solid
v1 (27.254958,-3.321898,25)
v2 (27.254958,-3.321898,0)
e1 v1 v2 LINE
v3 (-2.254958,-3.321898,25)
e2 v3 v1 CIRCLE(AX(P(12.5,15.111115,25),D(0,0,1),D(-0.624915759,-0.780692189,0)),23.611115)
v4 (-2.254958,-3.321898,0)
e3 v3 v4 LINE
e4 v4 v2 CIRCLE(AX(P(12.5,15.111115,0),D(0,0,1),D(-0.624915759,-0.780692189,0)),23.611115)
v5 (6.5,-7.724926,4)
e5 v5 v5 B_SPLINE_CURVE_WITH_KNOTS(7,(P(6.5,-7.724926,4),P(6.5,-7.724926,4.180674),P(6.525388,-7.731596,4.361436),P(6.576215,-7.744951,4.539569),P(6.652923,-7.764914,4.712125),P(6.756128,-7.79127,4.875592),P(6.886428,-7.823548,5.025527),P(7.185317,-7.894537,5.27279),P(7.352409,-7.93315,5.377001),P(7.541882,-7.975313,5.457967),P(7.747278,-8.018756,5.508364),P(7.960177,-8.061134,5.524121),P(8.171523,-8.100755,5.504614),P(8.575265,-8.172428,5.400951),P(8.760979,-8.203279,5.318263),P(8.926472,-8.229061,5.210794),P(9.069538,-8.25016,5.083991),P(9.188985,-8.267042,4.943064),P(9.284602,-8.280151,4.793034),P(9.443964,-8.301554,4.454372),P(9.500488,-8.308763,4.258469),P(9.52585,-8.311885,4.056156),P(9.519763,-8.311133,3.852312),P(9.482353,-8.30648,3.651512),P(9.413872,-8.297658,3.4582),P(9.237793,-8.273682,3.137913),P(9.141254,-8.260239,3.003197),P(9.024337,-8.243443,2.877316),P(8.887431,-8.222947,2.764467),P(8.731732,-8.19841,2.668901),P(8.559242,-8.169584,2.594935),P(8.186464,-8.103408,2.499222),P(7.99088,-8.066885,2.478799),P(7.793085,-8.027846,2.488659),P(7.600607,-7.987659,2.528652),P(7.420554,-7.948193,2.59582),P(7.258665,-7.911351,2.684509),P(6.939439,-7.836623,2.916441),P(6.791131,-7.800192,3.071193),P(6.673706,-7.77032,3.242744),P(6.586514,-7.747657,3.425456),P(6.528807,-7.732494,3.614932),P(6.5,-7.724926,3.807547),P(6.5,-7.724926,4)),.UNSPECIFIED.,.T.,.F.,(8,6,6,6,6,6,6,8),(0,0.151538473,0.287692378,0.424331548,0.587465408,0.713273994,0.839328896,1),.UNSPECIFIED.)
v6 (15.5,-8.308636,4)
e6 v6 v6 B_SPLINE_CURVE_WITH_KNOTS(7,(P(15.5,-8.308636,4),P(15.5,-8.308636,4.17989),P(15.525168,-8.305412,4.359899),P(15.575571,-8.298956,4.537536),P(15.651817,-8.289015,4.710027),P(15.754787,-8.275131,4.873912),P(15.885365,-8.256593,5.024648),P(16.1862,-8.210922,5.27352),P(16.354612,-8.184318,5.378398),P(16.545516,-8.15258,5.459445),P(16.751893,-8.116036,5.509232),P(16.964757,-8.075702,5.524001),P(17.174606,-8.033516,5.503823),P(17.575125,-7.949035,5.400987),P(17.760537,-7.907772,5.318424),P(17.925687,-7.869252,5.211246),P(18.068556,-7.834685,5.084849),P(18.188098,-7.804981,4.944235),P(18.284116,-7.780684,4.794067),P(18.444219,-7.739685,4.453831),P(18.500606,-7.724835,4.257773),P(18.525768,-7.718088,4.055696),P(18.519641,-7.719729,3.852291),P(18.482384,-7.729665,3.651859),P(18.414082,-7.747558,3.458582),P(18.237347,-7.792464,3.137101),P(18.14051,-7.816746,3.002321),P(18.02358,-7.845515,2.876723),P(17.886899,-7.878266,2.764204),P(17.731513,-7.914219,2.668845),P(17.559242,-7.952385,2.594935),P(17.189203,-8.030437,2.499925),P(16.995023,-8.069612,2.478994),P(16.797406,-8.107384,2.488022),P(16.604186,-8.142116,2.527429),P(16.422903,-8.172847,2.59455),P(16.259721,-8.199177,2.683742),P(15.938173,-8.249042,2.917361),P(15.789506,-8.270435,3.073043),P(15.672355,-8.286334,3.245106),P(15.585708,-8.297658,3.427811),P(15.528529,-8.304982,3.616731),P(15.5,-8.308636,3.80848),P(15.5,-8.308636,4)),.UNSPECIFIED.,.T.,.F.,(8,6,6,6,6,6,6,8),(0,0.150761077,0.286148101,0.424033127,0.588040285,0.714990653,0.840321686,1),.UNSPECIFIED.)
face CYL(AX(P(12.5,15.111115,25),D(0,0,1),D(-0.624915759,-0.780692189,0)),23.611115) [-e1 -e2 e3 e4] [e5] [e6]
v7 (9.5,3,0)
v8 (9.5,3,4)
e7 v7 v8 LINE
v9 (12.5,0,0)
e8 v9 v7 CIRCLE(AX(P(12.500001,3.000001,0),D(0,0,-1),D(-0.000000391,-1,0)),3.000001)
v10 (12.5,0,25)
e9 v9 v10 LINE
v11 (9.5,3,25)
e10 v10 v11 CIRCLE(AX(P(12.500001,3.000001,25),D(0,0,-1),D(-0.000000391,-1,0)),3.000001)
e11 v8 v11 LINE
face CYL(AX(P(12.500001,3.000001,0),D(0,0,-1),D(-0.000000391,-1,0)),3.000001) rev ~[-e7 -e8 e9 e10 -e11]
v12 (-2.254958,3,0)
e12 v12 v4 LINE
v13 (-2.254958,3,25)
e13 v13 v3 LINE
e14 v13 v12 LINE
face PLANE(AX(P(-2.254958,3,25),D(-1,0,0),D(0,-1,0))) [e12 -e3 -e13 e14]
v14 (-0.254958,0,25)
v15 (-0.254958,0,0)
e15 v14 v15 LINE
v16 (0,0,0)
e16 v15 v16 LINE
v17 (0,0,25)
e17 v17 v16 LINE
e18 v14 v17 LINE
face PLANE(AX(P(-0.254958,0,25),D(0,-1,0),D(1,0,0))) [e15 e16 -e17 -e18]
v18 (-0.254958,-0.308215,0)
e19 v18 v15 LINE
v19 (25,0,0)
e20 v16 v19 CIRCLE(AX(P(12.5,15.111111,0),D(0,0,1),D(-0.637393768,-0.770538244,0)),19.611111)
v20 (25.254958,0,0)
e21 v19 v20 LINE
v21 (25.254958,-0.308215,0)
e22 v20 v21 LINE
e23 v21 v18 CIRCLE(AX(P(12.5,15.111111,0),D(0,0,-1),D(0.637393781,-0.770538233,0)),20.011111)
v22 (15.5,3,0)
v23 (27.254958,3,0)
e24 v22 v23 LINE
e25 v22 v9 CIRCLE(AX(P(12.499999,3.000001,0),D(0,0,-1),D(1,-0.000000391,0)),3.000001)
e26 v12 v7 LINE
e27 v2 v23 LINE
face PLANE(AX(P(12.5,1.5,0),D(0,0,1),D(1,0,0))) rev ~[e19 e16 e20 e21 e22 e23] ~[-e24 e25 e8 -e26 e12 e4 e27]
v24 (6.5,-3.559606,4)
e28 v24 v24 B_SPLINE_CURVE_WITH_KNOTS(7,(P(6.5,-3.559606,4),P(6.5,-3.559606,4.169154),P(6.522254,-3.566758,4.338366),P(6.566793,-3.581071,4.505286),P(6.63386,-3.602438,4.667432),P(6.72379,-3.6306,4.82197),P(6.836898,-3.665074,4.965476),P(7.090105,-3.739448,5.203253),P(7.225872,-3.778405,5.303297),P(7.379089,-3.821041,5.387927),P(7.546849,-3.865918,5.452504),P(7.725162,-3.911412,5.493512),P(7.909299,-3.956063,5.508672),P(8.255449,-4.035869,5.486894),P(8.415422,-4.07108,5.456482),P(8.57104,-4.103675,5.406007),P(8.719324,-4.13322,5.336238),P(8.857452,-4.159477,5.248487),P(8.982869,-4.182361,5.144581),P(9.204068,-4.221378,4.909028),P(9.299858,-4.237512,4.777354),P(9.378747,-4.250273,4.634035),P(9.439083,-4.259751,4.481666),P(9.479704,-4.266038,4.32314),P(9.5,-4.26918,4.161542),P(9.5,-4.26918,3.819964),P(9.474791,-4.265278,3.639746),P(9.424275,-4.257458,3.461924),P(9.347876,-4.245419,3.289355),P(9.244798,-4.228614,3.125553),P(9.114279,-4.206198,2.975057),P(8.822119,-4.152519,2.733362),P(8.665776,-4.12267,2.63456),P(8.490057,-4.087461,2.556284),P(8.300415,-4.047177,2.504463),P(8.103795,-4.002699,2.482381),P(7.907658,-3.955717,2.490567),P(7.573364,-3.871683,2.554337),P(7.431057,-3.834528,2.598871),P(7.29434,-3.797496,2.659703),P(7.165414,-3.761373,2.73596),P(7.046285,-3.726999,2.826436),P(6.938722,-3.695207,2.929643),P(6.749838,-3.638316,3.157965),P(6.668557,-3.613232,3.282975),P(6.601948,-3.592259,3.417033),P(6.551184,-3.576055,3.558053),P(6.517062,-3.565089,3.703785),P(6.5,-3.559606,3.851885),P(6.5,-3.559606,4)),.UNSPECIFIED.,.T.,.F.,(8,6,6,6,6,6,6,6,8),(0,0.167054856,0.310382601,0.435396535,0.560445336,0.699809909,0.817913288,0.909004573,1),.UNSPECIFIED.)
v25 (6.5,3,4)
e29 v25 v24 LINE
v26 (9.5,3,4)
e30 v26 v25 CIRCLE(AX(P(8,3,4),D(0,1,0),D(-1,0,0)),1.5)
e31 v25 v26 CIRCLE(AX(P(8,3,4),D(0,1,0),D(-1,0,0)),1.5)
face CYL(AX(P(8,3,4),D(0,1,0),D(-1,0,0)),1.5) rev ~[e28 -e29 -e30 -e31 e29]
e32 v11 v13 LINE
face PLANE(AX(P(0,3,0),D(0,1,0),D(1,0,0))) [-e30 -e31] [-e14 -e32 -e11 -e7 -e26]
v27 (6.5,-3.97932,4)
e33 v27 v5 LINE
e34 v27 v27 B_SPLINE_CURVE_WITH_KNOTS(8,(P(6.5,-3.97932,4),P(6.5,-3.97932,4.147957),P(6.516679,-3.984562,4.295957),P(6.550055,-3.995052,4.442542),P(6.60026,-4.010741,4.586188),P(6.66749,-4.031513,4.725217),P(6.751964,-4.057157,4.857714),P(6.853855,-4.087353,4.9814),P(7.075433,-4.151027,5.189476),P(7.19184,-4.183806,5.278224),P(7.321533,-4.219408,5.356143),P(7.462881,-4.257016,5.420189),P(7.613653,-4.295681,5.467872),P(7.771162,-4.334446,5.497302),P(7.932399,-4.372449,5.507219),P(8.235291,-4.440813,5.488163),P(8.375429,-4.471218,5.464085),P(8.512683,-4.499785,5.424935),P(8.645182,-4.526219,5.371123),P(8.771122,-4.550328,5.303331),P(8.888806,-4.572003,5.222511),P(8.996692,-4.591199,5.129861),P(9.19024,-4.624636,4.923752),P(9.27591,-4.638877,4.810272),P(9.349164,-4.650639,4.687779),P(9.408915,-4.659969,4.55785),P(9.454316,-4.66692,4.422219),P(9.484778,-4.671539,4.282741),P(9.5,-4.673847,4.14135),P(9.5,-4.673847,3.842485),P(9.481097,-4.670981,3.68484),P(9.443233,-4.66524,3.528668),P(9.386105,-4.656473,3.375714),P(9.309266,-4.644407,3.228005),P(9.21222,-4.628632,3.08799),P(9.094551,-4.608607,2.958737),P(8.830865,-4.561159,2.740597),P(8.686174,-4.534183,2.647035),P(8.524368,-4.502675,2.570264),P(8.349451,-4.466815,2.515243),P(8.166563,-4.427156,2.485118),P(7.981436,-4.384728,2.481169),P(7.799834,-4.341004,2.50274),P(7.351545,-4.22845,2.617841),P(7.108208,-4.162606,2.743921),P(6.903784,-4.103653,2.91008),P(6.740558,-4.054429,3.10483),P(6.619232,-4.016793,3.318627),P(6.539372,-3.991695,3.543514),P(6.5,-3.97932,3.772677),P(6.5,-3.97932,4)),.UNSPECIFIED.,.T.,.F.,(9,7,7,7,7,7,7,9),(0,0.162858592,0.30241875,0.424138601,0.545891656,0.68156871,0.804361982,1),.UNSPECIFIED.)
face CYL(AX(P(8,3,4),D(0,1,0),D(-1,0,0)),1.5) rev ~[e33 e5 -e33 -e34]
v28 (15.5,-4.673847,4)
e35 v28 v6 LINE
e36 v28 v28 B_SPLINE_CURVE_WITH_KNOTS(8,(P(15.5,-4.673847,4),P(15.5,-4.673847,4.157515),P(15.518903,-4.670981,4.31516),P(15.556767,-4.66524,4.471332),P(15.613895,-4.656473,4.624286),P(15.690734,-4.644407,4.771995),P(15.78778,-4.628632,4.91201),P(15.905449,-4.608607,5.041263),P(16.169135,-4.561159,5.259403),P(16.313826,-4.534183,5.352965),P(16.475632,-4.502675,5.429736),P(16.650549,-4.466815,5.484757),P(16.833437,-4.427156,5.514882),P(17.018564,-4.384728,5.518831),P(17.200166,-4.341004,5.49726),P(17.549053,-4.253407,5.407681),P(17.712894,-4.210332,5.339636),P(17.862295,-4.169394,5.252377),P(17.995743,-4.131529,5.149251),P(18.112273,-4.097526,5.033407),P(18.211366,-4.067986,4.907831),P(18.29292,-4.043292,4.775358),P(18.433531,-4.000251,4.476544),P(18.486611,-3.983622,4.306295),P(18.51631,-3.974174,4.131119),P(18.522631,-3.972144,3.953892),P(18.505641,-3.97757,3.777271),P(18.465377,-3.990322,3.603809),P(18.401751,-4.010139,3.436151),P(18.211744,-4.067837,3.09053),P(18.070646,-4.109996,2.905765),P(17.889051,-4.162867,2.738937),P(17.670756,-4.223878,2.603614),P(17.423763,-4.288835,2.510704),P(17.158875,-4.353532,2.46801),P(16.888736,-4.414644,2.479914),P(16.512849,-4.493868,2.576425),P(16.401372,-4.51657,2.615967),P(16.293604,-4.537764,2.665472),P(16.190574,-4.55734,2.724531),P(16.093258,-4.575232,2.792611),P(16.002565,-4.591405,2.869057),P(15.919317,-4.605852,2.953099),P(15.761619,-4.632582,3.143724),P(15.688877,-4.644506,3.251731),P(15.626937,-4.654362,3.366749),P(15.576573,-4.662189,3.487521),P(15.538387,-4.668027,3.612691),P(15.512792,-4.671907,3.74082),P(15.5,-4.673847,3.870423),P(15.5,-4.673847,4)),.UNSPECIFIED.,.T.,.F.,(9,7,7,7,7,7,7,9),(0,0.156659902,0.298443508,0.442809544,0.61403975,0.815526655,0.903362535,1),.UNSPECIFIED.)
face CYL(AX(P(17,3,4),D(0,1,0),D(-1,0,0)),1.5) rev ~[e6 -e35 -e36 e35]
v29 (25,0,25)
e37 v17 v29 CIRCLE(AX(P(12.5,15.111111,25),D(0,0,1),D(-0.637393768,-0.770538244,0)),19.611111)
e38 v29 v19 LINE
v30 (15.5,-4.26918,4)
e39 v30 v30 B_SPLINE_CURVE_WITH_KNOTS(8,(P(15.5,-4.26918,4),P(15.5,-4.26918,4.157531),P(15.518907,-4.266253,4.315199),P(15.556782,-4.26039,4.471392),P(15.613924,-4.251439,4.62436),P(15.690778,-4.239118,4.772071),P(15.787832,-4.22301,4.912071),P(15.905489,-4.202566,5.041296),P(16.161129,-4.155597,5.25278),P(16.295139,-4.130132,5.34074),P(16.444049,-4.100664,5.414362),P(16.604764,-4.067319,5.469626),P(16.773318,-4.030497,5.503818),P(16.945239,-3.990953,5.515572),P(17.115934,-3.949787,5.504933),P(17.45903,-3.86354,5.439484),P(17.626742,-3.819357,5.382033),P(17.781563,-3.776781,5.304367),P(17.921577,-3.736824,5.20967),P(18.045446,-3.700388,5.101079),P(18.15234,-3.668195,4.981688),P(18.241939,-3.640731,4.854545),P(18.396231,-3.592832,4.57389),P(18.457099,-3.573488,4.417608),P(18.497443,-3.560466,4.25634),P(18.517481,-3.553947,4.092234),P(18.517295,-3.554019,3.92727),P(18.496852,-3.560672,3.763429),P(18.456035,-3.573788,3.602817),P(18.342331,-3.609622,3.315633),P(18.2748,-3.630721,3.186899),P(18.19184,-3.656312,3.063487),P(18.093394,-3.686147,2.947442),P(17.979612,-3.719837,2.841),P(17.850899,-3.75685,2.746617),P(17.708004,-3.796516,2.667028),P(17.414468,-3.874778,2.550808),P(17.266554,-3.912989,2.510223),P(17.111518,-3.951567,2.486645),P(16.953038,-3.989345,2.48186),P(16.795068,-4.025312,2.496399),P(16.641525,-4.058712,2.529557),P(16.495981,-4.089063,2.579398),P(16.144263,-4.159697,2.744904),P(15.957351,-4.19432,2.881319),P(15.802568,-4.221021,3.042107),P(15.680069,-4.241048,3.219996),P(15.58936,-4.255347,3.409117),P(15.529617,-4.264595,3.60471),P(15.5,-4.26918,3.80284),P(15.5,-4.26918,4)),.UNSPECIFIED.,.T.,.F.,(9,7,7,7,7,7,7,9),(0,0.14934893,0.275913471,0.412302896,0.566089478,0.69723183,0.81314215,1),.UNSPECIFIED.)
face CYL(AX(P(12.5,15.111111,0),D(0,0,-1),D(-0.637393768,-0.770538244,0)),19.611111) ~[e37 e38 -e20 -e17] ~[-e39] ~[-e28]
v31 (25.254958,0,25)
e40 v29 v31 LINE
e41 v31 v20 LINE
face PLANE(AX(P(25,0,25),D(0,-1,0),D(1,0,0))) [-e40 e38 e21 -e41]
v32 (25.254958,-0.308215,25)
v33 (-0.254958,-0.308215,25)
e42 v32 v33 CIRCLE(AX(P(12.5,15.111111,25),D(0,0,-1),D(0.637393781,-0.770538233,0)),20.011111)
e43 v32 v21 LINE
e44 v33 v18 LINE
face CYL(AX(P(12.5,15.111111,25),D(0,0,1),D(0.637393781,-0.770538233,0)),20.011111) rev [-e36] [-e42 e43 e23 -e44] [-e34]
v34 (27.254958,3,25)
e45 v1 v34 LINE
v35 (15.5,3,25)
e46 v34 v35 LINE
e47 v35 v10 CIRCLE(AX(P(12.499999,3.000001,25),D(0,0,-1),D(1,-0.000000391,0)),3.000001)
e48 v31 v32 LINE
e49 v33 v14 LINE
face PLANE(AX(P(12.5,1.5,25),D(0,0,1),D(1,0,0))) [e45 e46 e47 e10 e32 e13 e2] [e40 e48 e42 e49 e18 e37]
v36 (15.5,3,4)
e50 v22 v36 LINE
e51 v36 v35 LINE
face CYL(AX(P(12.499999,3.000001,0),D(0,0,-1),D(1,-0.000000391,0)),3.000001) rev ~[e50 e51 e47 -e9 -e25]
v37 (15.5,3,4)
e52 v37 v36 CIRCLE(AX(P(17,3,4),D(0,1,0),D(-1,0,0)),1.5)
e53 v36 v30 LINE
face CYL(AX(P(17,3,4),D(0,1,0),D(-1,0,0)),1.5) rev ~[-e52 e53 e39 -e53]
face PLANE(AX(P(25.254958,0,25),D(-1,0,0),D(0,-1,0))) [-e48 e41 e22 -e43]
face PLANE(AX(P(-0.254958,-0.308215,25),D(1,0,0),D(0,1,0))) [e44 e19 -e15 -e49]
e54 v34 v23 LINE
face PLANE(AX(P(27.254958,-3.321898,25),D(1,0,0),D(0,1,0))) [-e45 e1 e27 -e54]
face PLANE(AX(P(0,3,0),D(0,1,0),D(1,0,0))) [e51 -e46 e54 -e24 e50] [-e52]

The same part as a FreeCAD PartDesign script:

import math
import FreeCAD as App
import Part
import Sketcher
from FreeCAD import Vector
Q = App.Units.Quantity

doc = App.newDocument("Part")
body = doc.addObject("PartDesign::Body", "Body")

sketch1 = body.newObject("Sketcher::SketchObject", "Sketch")
sketch1.AttachmentSupport = (doc.getObject("XY_Plane"), [""])
sketch1.MapMode = "FlatFace"
sketch1.addGeometry(Part.LineSegment(Vector(0, 3, 0), Vector(0, 0, 0)), False)
sketch1.addGeometry(Part.ArcOfCircle(Part.Circle(Vector(12.5, 15.1, 0), Vector(0, 0, 1), 19.6), math.radians(-130), math.radians(-50)), False)
sketch1.addGeometry(Part.LineSegment(Vector(25, 0, 0), Vector(25, 3, 0)), False)
sketch1.addGeometry(Part.LineSegment(Vector(25, 3, 0), Vector(0, 3, 0)), False)
sketch1.addConstraint(Sketcher.Constraint("Coincident", 0, 2, 1, 1))
sketch1.addConstraint(Sketcher.Constraint("Coincident", 1, 2, 2, 1))
sketch1.addConstraint(Sketcher.Constraint("Coincident", 2, 2, 3, 1))
sketch1.addConstraint(Sketcher.Constraint("Coincident", 3, 2, 0, 1))
sketch1.addConstraint(Sketcher.Constraint("Vertical", 0))
sketch1.addConstraint(Sketcher.Constraint("Vertical", 2))
sketch1.addConstraint(Sketcher.Constraint("Horizontal", 3))
sketch1.addConstraint(Sketcher.Constraint("Coincident", 0, 2, -1, 1))
sketch1.addConstraint(Sketcher.Constraint("PointOnObject", 1, 2, -1))
sketch1.addConstraint(Sketcher.Constraint("DistanceX", 3, 2, 3, 1, Q("25 mm")))
sketch1.addConstraint(Sketcher.Constraint("DistanceY", 0, 2, 0, 1, Q("3 mm")))
sketch1.addConstraint(Sketcher.Constraint("Radius", 1, Q("19.611111 mm")))
pad1 = body.newObject("PartDesign::Pad", "Pad")
pad1.Profile = sketch1
pad1.Length = 25
body2 = doc.addObject("PartDesign::Body", "Body001")

sketch2 = body2.newObject("Sketcher::SketchObject", "Sketch001")
sketch2.AttachmentSupport = (doc.getObject("XY_Plane001"), [""])
sketch2.MapMode = "FlatFace"
sketch2.AttachmentOffset = App.Placement(Vector(0, 0, 25), App.Rotation())
sketch2.addGeometry(Part.LineSegment(Vector(-0.25, -0.31, 0), Vector(-0.25, 0, 0)), False)
sketch2.addGeometry(Part.LineSegment(Vector(-0.25, 0, 0), Vector(0, 0, 0)), False)
sketch2.addGeometry(Part.LineSegment(Vector(0, 0, 0), Vector(0, 3, 0)), False)
sketch2.addGeometry(Part.LineSegment(Vector(0, 3, 0), Vector(-2.25, 3, 0)), False)
sketch2.addGeometry(Part.LineSegment(Vector(-2.25, 3, 0), Vector(-2.25, -3.32, 0)), False)
sketch2.addGeometry(Part.ArcOfCircle(Part.Circle(Vector(12.5, 15.11, 0), Vector(0, 0, 1), 23.61), math.radians(-129), math.radians(-51)), False)
sketch2.addGeometry(Part.LineSegment(Vector(27.25, -3.32, 0), Vector(27.25, 3, 0)), False)
sketch2.addGeometry(Part.LineSegment(Vector(27.25, 3, 0), Vector(25, 3, 0)), False)
sketch2.addGeometry(Part.LineSegment(Vector(25, 3, 0), Vector(25, 0, 0)), False)
sketch2.addGeometry(Part.LineSegment(Vector(25, 0, 0), Vector(25.25, 0, 0)), False)
sketch2.addGeometry(Part.LineSegment(Vector(25.25, 0, 0), Vector(25.25, -0.31, 0)), False)
sketch2.addGeometry(Part.ArcOfCircle(Part.Circle(Vector(12.5, 15.11, 0), Vector(0, 0, 1), 20.01), math.radians(-130), math.radians(-50)), False)
sketch2.addConstraint(Sketcher.Constraint("Coincident", 0, 2, 1, 1))
sketch2.addConstraint(Sketcher.Constraint("Coincident", 1, 2, 2, 1))
sketch2.addConstraint(Sketcher.Constraint("Coincident", 2, 2, 3, 1))
sketch2.addConstraint(Sketcher.Constraint("Coincident", 3, 2, 4, 1))
sketch2.addConstraint(Sketcher.Constraint("Coincident", 4, 2, 5, 1))
sketch2.addConstraint(Sketcher.Constraint("Coincident", 5, 2, 6, 1))
sketch2.addConstraint(Sketcher.Constraint("Coincident", 6, 2, 7, 1))
sketch2.addConstraint(Sketcher.Constraint("Coincident", 7, 2, 8, 1))
sketch2.addConstraint(Sketcher.Constraint("Coincident", 8, 2, 9, 1))
sketch2.addConstraint(Sketcher.Constraint("Coincident", 9, 2, 10, 1))
sketch2.addConstraint(Sketcher.Constraint("Coincident", 10, 2, 11, 2))
sketch2.addConstraint(Sketcher.Constraint("Coincident", 11, 1, 0, 1))
sketch2.addConstraint(Sketcher.Constraint("Vertical", 0))
sketch2.addConstraint(Sketcher.Constraint("Horizontal", 1))
sketch2.addConstraint(Sketcher.Constraint("Vertical", 2))
sketch2.addConstraint(Sketcher.Constraint("Horizontal", 3))
sketch2.addConstraint(Sketcher.Constraint("Vertical", 4))
sketch2.addConstraint(Sketcher.Constraint("Vertical", 6))
sketch2.addConstraint(Sketcher.Constraint("Horizontal", 7))
sketch2.addConstraint(Sketcher.Constraint("Vertical", 8))
sketch2.addConstraint(Sketcher.Constraint("Horizontal", 9))
sketch2.addConstraint(Sketcher.Constraint("Vertical", 10))
sketch2.addConstraint(Sketcher.Constraint("Coincident", 1, 2, -1, 1))
sketch2.addConstraint(Sketcher.Constraint("Coincident", 11, 3, 5, 3))
sketch2.addConstraint(Sketcher.Constraint("PointOnObject", 8, 2, -1))
sketch2.addConstraint(Sketcher.Constraint("Horizontal", 4, 2, 5, 2))
sketch2.addConstraint(Sketcher.Constraint("Horizontal", 3, 2, 6, 2))
sketch2.addConstraint(Sketcher.Constraint("Horizontal", 10, 2, 11, 1))
sketch2.addConstraint(Sketcher.Constraint("Equal", 3, 7))
sketch2.addConstraint(Sketcher.Constraint("DistanceY", 2, 1, 2, 2, Q("3 mm")))
sketch2.addConstraint(Sketcher.Constraint("DistanceX", -1, 1, 7, 2, Q("25 mm")))
sketch2.addConstraint(Sketcher.Constraint("DistanceX", 3, 2, 0, 2, Q("2 mm")))
sketch2.addConstraint(Sketcher.Constraint("Radius", 11, Q("20.011111 mm")))
sketch2.addConstraint(Sketcher.Constraint("Radius", 5, Q("23.611115 mm")))
sketch2.addConstraint(Sketcher.Constraint("DistanceY", 4, 2, -1, 1, Q("3.321898 mm")))
sketch2.addConstraint(Sketcher.Constraint("DistanceX", 1, 1, 1, 2, Q("0.254958 mm")))
pad2 = body2.newObject("PartDesign::Pad", "Pad001")
pad2.Profile = sketch2
pad2.Length = 25
pad2.Reversed = True
body3 = doc.addObject("PartDesign::Body", "Body002")
body3.AllowCompound = True

sketch3 = body3.newObject("Sketcher::SketchObject", "Sketch002")
sketch3.AttachmentSupport = (doc.getObject("XZ_Plane002"), [""])
sketch3.MapMode = "FlatFace"
sketch3.AttachmentOffset = App.Placement(Vector(0, 0, -3), App.Rotation())
sketch3.addGeometry(Part.Circle(Vector(17, 4, 0), Vector(0, 0, 1), 1.5), False)
sketch3.addGeometry(Part.Circle(Vector(8, 4, 0), Vector(0, 0, 1), 1.5), False)
sketch3.addConstraint(Sketcher.Constraint("Equal", 0, 1))
sketch3.addConstraint(Sketcher.Constraint("Horizontal", 0, 3, 1, 3))
sketch3.addConstraint(Sketcher.Constraint("Diameter", 0, Q("3 mm")))
sketch3.addConstraint(Sketcher.Constraint("DistanceX", -1, 1, 0, 3, Q("17 mm")))
sketch3.addConstraint(Sketcher.Constraint("DistanceY", -1, 1, 0, 3, Q("4 mm")))
sketch3.addConstraint(Sketcher.Constraint("DistanceX", -1, 1, 1, 3, Q("8 mm")))
pad3 = body3.newObject("PartDesign::Pad", "Pad002")
pad3.Profile = sketch3
pad3.Length = 25
doc.recompute()

body4 = doc.addObject("PartDesign::Body", "Body003")
body4.BaseFeature = body3
boolean = body.newObject("PartDesign::Boolean", "Boolean")
boolean.Type = "Cut"
boolean.addObjects([body4])
doc.recompute()

boolean2 = body2.newObject("PartDesign::Boolean", "Boolean001")
boolean2.Type = "Cut"
boolean2.addObjects([body3])
doc.recompute()

boolean3 = body2.newObject("PartDesign::Boolean", "Boolean002")
boolean3.Type = "Fuse"
boolean3.addObjects([body])

sketch4 = body2.newObject("Sketcher::SketchObject", "Sketch003")
sketch4.AttachmentSupport = (doc.getObject("XY_Plane001"), [""])
sketch4.MapMode = "FlatFace"
sketch4.addGeometry(Part.ArcOfCircle(Part.Circle(Vector(12.5, 3, 0), Vector(0, 0, 1), 3), math.radians(-90), math.radians(0)), False)
sketch4.addGeometry(Part.ArcOfCircle(Part.Circle(Vector(12.5, 3, 0), Vector(0, 0, 1), 3), math.radians(-180), math.radians(-90)), False)
sketch4.addGeometry(Part.LineSegment(Vector(9.5, 3, 0), Vector(15.5, 3, 0)), False)
sketch4.addConstraint(Sketcher.Constraint("Tangent", 0, 1, 1, 2))
sketch4.addConstraint(Sketcher.Constraint("Coincident", 1, 1, 2, 1))
sketch4.addConstraint(Sketcher.Constraint("Coincident", 2, 2, 0, 2))
sketch4.addConstraint(Sketcher.Constraint("Horizontal", 2))
sketch4.addConstraint(Sketcher.Constraint("Equal", 0, 1))
sketch4.addConstraint(Sketcher.Constraint("PointOnObject", 0, 1, -1))
sketch4.addConstraint(Sketcher.Constraint("Horizontal", 0, 3, 1, 1))
sketch4.addConstraint(Sketcher.Constraint("Vertical", 1, 3, 0, 1))
sketch4.addConstraint(Sketcher.Constraint("Radius", 0, Q("3.000001 mm")))
sketch4.addConstraint(Sketcher.Constraint("DistanceX", -1, 1, 0, 3, Q("12.499999 mm")))
pocket1 = body2.newObject("PartDesign::Pocket", "Pocket")
pocket1.Profile = sketch4
pocket1.Length = 25
pocket1.Reversed = True

doc.recompute()
